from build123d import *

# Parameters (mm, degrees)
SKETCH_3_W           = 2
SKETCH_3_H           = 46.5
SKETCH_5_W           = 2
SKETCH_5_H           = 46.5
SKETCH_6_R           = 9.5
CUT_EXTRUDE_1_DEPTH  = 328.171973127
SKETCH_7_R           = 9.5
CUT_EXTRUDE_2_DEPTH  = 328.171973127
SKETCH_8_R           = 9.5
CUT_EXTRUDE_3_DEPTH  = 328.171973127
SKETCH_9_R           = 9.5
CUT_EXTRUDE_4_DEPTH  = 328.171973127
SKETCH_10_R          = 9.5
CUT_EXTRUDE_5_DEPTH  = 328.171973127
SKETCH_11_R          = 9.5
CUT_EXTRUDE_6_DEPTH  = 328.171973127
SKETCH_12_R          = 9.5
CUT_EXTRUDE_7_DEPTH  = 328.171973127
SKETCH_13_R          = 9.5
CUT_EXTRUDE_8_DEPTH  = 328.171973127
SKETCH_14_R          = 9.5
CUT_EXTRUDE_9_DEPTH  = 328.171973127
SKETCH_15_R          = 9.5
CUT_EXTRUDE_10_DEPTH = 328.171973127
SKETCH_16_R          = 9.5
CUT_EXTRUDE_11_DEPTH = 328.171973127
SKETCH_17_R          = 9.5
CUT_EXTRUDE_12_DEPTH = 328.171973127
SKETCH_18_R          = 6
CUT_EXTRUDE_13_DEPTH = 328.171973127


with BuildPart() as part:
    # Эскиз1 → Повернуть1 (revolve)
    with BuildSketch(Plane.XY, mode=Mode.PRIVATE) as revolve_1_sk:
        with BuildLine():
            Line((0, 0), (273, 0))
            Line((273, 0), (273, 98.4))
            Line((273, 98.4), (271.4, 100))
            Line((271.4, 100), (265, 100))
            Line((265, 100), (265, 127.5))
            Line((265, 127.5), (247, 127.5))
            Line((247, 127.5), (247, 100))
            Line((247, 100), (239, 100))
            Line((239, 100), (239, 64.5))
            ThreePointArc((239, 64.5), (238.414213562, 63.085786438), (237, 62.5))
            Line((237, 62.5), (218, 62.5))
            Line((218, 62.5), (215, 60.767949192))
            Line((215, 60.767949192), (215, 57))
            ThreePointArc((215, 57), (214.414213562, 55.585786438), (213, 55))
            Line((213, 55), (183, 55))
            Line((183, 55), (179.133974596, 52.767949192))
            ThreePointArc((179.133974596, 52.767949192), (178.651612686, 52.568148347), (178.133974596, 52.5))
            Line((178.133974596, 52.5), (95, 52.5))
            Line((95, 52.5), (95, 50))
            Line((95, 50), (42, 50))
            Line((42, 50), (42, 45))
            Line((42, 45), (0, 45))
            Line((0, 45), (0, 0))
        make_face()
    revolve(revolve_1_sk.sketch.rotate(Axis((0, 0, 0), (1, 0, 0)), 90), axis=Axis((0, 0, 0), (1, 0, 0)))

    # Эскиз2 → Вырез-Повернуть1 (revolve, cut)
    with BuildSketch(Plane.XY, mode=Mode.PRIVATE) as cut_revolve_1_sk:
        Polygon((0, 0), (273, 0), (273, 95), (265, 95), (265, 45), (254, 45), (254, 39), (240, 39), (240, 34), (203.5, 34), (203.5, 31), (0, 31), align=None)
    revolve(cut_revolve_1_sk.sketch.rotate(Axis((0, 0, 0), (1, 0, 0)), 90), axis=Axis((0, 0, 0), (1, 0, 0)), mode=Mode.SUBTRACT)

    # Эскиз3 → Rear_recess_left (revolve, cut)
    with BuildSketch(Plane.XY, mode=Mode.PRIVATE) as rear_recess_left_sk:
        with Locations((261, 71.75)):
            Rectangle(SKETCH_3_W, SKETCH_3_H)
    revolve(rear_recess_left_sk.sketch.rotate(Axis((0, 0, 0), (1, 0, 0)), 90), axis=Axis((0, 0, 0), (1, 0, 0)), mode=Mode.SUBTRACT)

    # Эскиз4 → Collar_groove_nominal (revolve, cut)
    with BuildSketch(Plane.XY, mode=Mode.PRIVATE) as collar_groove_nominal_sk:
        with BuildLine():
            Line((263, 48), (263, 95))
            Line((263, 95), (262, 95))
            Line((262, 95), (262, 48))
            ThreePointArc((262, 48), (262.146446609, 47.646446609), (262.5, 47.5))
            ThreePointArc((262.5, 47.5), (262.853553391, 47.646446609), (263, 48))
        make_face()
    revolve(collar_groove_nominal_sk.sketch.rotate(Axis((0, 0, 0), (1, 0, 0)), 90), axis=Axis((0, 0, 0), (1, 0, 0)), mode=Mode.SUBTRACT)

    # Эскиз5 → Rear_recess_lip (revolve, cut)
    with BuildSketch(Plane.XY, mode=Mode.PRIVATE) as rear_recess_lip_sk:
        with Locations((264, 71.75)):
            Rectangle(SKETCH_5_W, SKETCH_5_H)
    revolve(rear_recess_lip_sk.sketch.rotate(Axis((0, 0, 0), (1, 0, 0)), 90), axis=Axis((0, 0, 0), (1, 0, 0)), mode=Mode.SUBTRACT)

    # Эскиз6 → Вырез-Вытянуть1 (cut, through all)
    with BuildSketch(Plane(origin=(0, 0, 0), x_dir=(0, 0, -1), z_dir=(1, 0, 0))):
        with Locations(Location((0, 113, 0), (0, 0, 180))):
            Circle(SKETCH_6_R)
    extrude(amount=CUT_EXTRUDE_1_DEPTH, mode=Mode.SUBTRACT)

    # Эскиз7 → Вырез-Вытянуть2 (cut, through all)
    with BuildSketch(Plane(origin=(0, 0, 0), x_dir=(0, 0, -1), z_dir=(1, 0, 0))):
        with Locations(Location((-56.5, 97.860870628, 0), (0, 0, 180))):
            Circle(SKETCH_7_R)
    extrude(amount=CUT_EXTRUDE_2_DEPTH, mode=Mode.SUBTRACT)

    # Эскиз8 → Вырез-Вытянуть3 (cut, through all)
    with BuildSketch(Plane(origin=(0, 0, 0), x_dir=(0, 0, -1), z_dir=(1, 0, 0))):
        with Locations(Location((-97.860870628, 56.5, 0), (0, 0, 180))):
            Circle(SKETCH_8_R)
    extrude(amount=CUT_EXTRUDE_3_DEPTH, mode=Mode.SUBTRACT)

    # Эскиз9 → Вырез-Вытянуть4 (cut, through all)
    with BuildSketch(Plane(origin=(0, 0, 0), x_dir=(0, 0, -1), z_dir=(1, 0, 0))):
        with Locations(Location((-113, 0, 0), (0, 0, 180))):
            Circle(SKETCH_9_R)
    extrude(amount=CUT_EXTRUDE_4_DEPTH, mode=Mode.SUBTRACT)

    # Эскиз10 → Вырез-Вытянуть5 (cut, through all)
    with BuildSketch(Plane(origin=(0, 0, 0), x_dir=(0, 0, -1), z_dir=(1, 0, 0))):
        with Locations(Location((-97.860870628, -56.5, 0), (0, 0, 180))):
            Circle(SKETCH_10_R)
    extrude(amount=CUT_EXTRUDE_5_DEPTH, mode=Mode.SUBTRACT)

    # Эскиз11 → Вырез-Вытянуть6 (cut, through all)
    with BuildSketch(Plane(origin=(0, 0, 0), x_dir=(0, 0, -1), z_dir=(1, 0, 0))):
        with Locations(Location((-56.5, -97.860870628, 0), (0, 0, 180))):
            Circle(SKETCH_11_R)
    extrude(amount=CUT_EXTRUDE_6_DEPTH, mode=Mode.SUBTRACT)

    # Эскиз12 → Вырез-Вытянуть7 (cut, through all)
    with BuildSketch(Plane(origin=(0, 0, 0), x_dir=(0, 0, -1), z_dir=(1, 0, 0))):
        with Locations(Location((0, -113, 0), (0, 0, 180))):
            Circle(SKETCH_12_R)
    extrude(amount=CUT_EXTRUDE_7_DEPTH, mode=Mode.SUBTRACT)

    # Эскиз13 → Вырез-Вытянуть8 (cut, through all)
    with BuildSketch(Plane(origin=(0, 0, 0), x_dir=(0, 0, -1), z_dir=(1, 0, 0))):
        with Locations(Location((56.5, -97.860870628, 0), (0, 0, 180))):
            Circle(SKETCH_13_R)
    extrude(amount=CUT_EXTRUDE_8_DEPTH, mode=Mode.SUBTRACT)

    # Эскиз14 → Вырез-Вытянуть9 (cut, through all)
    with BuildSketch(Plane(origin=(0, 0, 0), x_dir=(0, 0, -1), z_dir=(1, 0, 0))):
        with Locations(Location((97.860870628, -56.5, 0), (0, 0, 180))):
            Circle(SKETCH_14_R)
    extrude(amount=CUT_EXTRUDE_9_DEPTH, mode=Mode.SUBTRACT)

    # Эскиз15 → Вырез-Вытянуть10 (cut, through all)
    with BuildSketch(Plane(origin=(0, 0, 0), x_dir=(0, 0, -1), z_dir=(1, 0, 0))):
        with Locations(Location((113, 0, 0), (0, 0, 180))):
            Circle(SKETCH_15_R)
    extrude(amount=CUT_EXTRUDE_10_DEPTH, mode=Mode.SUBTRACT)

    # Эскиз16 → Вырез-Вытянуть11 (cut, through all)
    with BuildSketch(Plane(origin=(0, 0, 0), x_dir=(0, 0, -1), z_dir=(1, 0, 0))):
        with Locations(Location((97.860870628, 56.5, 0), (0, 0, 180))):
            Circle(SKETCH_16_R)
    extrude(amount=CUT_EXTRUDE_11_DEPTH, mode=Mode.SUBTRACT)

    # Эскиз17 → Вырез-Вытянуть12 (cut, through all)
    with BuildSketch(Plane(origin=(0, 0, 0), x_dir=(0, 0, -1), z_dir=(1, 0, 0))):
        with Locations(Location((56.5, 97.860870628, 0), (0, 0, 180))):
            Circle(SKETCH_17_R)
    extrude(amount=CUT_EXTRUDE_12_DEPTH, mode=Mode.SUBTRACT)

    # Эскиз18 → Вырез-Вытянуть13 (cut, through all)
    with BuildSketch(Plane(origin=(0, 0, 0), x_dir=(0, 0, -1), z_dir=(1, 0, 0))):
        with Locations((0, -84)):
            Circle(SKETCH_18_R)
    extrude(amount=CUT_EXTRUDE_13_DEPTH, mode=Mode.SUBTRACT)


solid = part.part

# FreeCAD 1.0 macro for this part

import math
import FreeCAD as App
import Part
import Sketcher
Q = App.Units.Quantity


def add_polygon(sketch, points):
    """Adds a closed chain of lines whose ends are joined by coincident constraints."""
    first, n = sketch.GeometryCount, len(points)
    for a, b in zip(points, points[1:] + points[:1]):
        sketch.addGeometry(Part.LineSegment(App.Vector(*a, 0), App.Vector(*b, 0)), False)
    for i in range(n):
        sketch.addConstraint(Sketcher.Constraint("Coincident", first + i, 2, first + (i + 1) % n, 1))

doc = App.newDocument("Part")
body = doc.addObject("PartDesign::Body", "Body")

sketch1 = body.newObject("Sketcher::SketchObject", "Sketch")
sketch1.AttachmentSupport = (doc.getObject("XY_Plane"), [""])
sketch1.MapMode = "FlatFace"
sketch1.addGeometry([
    Part.LineSegment(App.Vector(0, 0, 0), App.Vector(273, 0, 0)),
    Part.LineSegment(App.Vector(273, 0, 0), App.Vector(273, 98.4, 0)),
    Part.LineSegment(App.Vector(273, 98.4, 0), App.Vector(271.4, 100, 0)),
    Part.LineSegment(App.Vector(271.4, 100, 0), App.Vector(265, 100, 0)),
    Part.LineSegment(App.Vector(265, 100, 0), App.Vector(265, 127.5, 0)),
    Part.LineSegment(App.Vector(265, 127.5, 0), App.Vector(247, 127.5, 0)),
    Part.LineSegment(App.Vector(247, 127.5, 0), App.Vector(247, 100, 0)),
    Part.LineSegment(App.Vector(247, 100, 0), App.Vector(239, 100, 0)),
    Part.LineSegment(App.Vector(239, 100, 0), App.Vector(239, 64.5, 0)),
    Part.ArcOfCircle(Part.Circle(App.Vector(237, 64.5, 0), App.Vector(0, 0, 1), 2), math.radians(-90), math.radians(0)),
    Part.LineSegment(App.Vector(237, 62.5, 0), App.Vector(218, 62.5, 0)),
    Part.LineSegment(App.Vector(218, 62.5, 0), App.Vector(215, 60.767949, 0)),
    Part.LineSegment(App.Vector(215, 60.767949, 0), App.Vector(215, 57, 0)),
    Part.ArcOfCircle(Part.Circle(App.Vector(213, 57, 0), App.Vector(0, 0, 1), 2), math.radians(-90), math.radians(0)),
    Part.LineSegment(App.Vector(213, 55, 0), App.Vector(183, 55, 0)),
    Part.LineSegment(App.Vector(183, 55, 0), App.Vector(179.133975, 52.767949, 0)),
    Part.ArcOfCircle(Part.Circle(App.Vector(178.133975, 54.5, 0), App.Vector(0, 0, 1), 2), math.radians(-90), math.radians(-60)),
    Part.LineSegment(App.Vector(178.133975, 52.5, 0), App.Vector(95, 52.5, 0)),
    Part.LineSegment(App.Vector(95, 52.5, 0), App.Vector(95, 50, 0)),
    Part.LineSegment(App.Vector(95, 50, 0), App.Vector(42, 50, 0)),
    Part.LineSegment(App.Vector(42, 50, 0), App.Vector(42, 45, 0)),
    Part.LineSegment(App.Vector(42, 45, 0), App.Vector(0, 45, 0)),
    Part.LineSegment(App.Vector(0, 45, 0), App.Vector(0, 0, 0)),
], False)
sketch1.addConstraint([
    Sketcher.Constraint("Coincident", 0, 2, 1, 1),
    Sketcher.Constraint("Coincident", 1, 2, 2, 1),
    Sketcher.Constraint("Coincident", 2, 2, 3, 1),
    Sketcher.Constraint("Coincident", 3, 2, 4, 1),
    Sketcher.Constraint("Coincident", 4, 2, 5, 1),
    Sketcher.Constraint("Coincident", 5, 2, 6, 1),
    Sketcher.Constraint("Coincident", 6, 2, 7, 1),
    Sketcher.Constraint("Coincident", 7, 2, 8, 1),
    Sketcher.Constraint("Tangent", 8, 2, 9, 2),
    Sketcher.Constraint("Tangent", 9, 1, 10, 1),
    Sketcher.Constraint("Coincident", 10, 2, 11, 1),
    Sketcher.Constraint("Coincident", 11, 2, 12, 1),
    Sketcher.Constraint("Tangent", 12, 2, 13, 2),
    Sketcher.Constraint("Tangent", 13, 1, 14, 1),
    Sketcher.Constraint("Coincident", 14, 2, 15, 1),
    Sketcher.Constraint("Tangent", 15, 2, 16, 2),
    Sketcher.Constraint("Tangent", 16, 1, 17, 1),
    Sketcher.Constraint("Coincident", 17, 2, 18, 1),
    Sketcher.Constraint("Coincident", 18, 2, 19, 1),
    Sketcher.Constraint("Coincident", 19, 2, 20, 1),
    Sketcher.Constraint("Coincident", 20, 2, 21, 1),
    Sketcher.Constraint("Coincident", 21, 2, 22, 1),
    Sketcher.Constraint("Coincident", 22, 2, 0, 1),
    Sketcher.Constraint("Horizontal", 0),
    Sketcher.Constraint("Vertical", 1),
    Sketcher.Constraint("Horizontal", 3),
    Sketcher.Constraint("Vertical", 4),
    Sketcher.Constraint("Horizontal", 5),
    Sketcher.Constraint("Vertical", 6),
    Sketcher.Constraint("Horizontal", 7),
    Sketcher.Constraint("Vertical", 8),
    Sketcher.Constraint("Horizontal", 10),
    Sketcher.Constraint("Vertical", 12),
    Sketcher.Constraint("Horizontal", 14),
    Sketcher.Constraint("Horizontal", 17),
    Sketcher.Constraint("Vertical", 18),
    Sketcher.Constraint("Horizontal", 19),
    Sketcher.Constraint("Vertical", 20),
    Sketcher.Constraint("Horizontal", 21),
    Sketcher.Constraint("Vertical", 22),
    Sketcher.Constraint("Coincident", 22, 2, -1, 1),
    Sketcher.Constraint("Equal", 9, 13),
    Sketcher.Constraint("Equal", 13, 16),
    Sketcher.Constraint("Parallel", 11, 15),
    Sketcher.Constraint("Horizontal", 3, 2, 6, 2),
    Sketcher.Constraint("Radius", 9, Q("2 mm")),
    Sketcher.Constraint("DistanceX", 0, 1, 0, 2, Q("273 mm")),
    Sketcher.Constraint("DistanceX", 5, 2, 5, 1, Q("18 mm")),
    Sketcher.Constraint("DistanceX", 7, 2, 7, 1, Q("8 mm")),
    Sketcher.Constraint("DistanceX", 10, 2, 10, 1, Q("19 mm")),
    Sketcher.Constraint("DistanceX", 14, 2, 14, 1, Q("30 mm")),
    Sketcher.Constraint("DistanceX", 19, 2, 19, 1, Q("53 mm")),
    Sketcher.Constraint("DistanceX", 21, 2, 21, 1, Q("42 mm")),
    Sketcher.Constraint("DistanceY", 20, 2, 20, 1, Q("5 mm")),
    Sketcher.Constraint("DistanceY", 22, 2, 22, 1, Q("45 mm")),
    Sketcher.Constraint("Angle", 2, Q("135 deg")),
    Sketcher.Constraint("Angle", 11, Q("-150 deg")),
    Sketcher.Constraint("DistanceX", 3, 2, 3, 1, Q("6.4 mm")),
    Sketcher.Constraint("DistanceY", 1, 1, 1, 2, Q("98.4 mm")),
    Sketcher.Constraint("DistanceY", 4, 1, 4, 2, Q("27.5 mm")),
    Sketcher.Constraint("DistanceY", 8, 2, 8, 1, Q("35.5 mm")),
    Sketcher.Constraint("DistanceY", 18, 2, 18, 1, Q("2.5 mm")),
    Sketcher.Constraint("DistanceX", -1, 1, 9, 3, Q("237 mm")),
    Sketcher.Constraint("DistanceX", -1, 1, 13, 3, Q("213 mm")),
    Sketcher.Constraint("DistanceY", -1, 1, 13, 3, Q("57 mm")),
])
revolution = body.newObject("PartDesign::Revolution", "Revolution")
revolution.Profile = sketch1
revolution.ReferenceAxis = (sketch1, ["H_Axis"])
revolution.Angle = 360

sketch2 = body.newObject("Sketcher::SketchObject", "Sketch001")
sketch2.AttachmentSupport = (doc.getObject("XY_Plane"), [""])
sketch2.MapMode = "FlatFace"
add_polygon(sketch2, [(0, 0), (273, 0), (273, 95), (265, 95), (265, 45), (254, 45), (254, 39), (240, 39), (240, 34), (203.5, 34), (203.5, 31), (0, 31)])
sketch2.addConstraint([
    Sketcher.Constraint("Horizontal", 0),
    Sketcher.Constraint("Vertical", 1),
    Sketcher.Constraint("Horizontal", 2),
    Sketcher.Constraint("Vertical", 3),
    Sketcher.Constraint("Horizontal", 4),
    Sketcher.Constraint("Vertical", 5),
    Sketcher.Constraint("Horizontal", 6),
    Sketcher.Constraint("Vertical", 7),
    Sketcher.Constraint("Horizontal", 8),
    Sketcher.Constraint("Vertical", 9),
    Sketcher.Constraint("Horizontal", 10),
    Sketcher.Constraint("Vertical", 11),
    Sketcher.Constraint("Coincident", 11, 2, -1, 1),
    Sketcher.Constraint("DistanceX", 0, 1, 0, 2, Q("273 mm")),
    Sketcher.Constraint("DistanceX", 2, 2, 2, 1, Q("8 mm")),
    Sketcher.Constraint("DistanceX", 4, 2, 4, 1, Q("11 mm")),
    Sketcher.Constraint("DistanceX", 6, 2, 6, 1, Q("14 mm")),
    Sketcher.Constraint("DistanceY", 1, 1, 1, 2, Q("95 mm")),
    Sketcher.Constraint("DistanceY", 3, 2, 3, 1, Q("50 mm")),
    Sketcher.Constraint("DistanceY", 5, 2, 5, 1, Q("6 mm")),
    Sketcher.Constraint("DistanceY", 7, 2, 7, 1, Q("5 mm")),
    Sketcher.Constraint("DistanceY", 9, 2, 9, 1, Q("3 mm")),
    Sketcher.Constraint("DistanceX", 8, 2, 8, 1, Q("36.5 mm")),
])
groove = body.newObject("PartDesign::Groove", "Groove")
groove.Profile = sketch2
groove.ReferenceAxis = (sketch2, ["H_Axis"])
groove.Angle = 360

sketch3 = body.newObject("Sketcher::SketchObject", "Sketch002")
sketch3.AttachmentSupport = (doc.getObject("XY_Plane"), [""])
sketch3.MapMode = "FlatFace"
add_polygon(sketch3, [(260, 95), (260, 48.5), (262, 48.5), (262, 95)])
sketch3.addConstraint([
    Sketcher.Constraint("Vertical", 0),
    Sketcher.Constraint("Horizontal", 1),
    Sketcher.Constraint("Vertical", 2),
    Sketcher.Constraint("Horizontal", 3),
    Sketcher.Constraint("DistanceX", 1, 1, 1, 2, Q("2 mm")),
    Sketcher.Constraint("DistanceY", 0, 2, 0, 1, Q("46.5 mm")),
    Sketcher.Constraint("DistanceX", -1, 1, 0, 2, Q("260 mm")),
    Sketcher.Constraint("DistanceY", -1, 1, 2, 2, Q("95 mm")),
])
groove2 = body.newObject("PartDesign::Groove", "Groove001")
groove2.Profile = sketch3
groove2.ReferenceAxis = (sketch3, ["H_Axis"])
groove2.Angle = 360

sketch4 = body.newObject("Sketcher::SketchObject", "Sketch003")
sketch4.AttachmentSupport = (doc.getObject("XY_Plane"), [""])
sketch4.MapMode = "FlatFace"
sketch4.addGeometry([
    Part.LineSegment(App.Vector(263, 48, 0), App.Vector(263, 95, 0)),
    Part.LineSegment(App.Vector(263, 95, 0), App.Vector(262, 95, 0)),
    Part.LineSegment(App.Vector(262, 95, 0), App.Vector(262, 48, 0)),
    Part.ArcOfCircle(Part.Circle(App.Vector(262.5, 48, 0), App.Vector(0, 0, 1), 0.5), math.radians(180), math.radians(270)),
    Part.ArcOfCircle(Part.Circle(App.Vector(262.5, 48, 0), App.Vector(0, 0, 1), 0.5), math.radians(-90), math.radians(0)),
], False)
sketch4.addConstraint([
    Sketcher.Constraint("Coincident", 0, 2, 1, 1),
    Sketcher.Constraint("Coincident", 1, 2, 2, 1),
    Sketcher.Constraint("Tangent", 2, 2, 3, 1),
    Sketcher.Constraint("Tangent", 3, 2, 4, 1),
    Sketcher.Constraint("Tangent", 4, 2, 0, 1),
    Sketcher.Constraint("Vertical", 0),
    Sketcher.Constraint("Horizontal", 1),
    Sketcher.Constraint("Vertical", 2),
    Sketcher.Constraint("Equal", 3, 4),
    Sketcher.Constraint("Vertical", 4, 3, 3, 2),
    Sketcher.Constraint("Radius", 3, Q("0.5 mm")),
    Sketcher.Constraint("DistanceY", 0, 1, 0, 2, Q("47 mm")),
    Sketcher.Constraint("DistanceY", -1, 1, 3, 3, Q("48 mm")),
    Sketcher.Constraint("DistanceX", -1, 1, 0, 2, Q("263 mm")),
])
groove3 = body.newObject("PartDesign::Groove", "Groove002")
groove3.Profile = sketch4
groove3.ReferenceAxis = (sketch4, ["H_Axis"])
groove3.Angle = 360

sketch5 = body.newObject("Sketcher::SketchObject", "Sketch004")
sketch5.AttachmentSupport = (doc.getObject("XY_Plane"), [""])
sketch5.MapMode = "FlatFace"
add_polygon(sketch5, [(263, 95), (263, 48.5), (265, 48.5), (265, 95)])
sketch5.addConstraint([
    Sketcher.Constraint("Vertical", 0),
    Sketcher.Constraint("Horizontal", 1),
    Sketcher.Constraint("Vertical", 2),
    Sketcher.Constraint("Horizontal", 3),
    Sketcher.Constraint("DistanceX", 1, 1, 1, 2, Q("2 mm")),
    Sketcher.Constraint("DistanceY", 0, 2, 0, 1, Q("46.5 mm")),
    Sketcher.Constraint("DistanceX", -1, 1, 0, 2, Q("263 mm")),
    Sketcher.Constraint("DistanceY", -1, 1, 2, 2, Q("95 mm")),
])
groove4 = body.newObject("PartDesign::Groove", "Groove003")
groove4.Profile = sketch5
groove4.ReferenceAxis = (sketch5, ["H_Axis"])
groove4.Angle = 360

sketch6 = body.newObject("Sketcher::SketchObject", "Sketch005")
sketch6.AttachmentSupport = (doc.getObject("YZ_Plane"), [""])
sketch6.MapMode = "FlatFace"
sketch6.addGeometry(Part.Circle(App.Vector(113, 0, 0), App.Vector(0, 0, 1), 9.5), False)
sketch6.addConstraint([
    Sketcher.Constraint("PointOnObject", 0, 3, -1),
    Sketcher.Constraint("Diameter", 0, Q("19 mm")),
    Sketcher.Constraint("DistanceX", -1, 1, 0, 3, Q("113 mm")),
])
pocket1 = body.newObject("PartDesign::Pocket", "Pocket")
pocket1.Profile = sketch6
pocket1.Type = "ThroughAll"
pocket1.Reversed = True

sketch7 = body.newObject("Sketcher::SketchObject", "Sketch006")
sketch7.AttachmentSupport = (doc.getObject("YZ_Plane"), [""])
sketch7.MapMode = "FlatFace"
sketch7.addGeometry(Part.Circle(App.Vector(97.860871, 56.5, 0), App.Vector(0, 0, 1), 9.5), False)
sketch7.addConstraint([
    Sketcher.Constraint("Diameter", 0, Q("19 mm")),
    Sketcher.Constraint("DistanceY", -1, 1, 0, 3, Q("56.5 mm")),
    Sketcher.Constraint("DistanceX", -1, 1, 0, 3, Q("97.860871 mm")),
])
pocket2 = body.newObject("PartDesign::Pocket", "Pocket001")
pocket2.Profile = sketch7
pocket2.Type = "ThroughAll"
pocket2.Reversed = True

sketch8 = body.newObject("Sketcher::SketchObject", "Sketch007")
sketch8.AttachmentSupport = (doc.getObject("YZ_Plane"), [""])
sketch8.MapMode = "FlatFace"
sketch8.addGeometry(Part.Circle(App.Vector(56.5, 97.860871, 0), App.Vector(0, 0, 1), 9.5), False)
sketch8.addConstraint([
    Sketcher.Constraint("Diameter", 0, Q("19 mm")),
    Sketcher.Constraint("DistanceX", -1, 1, 0, 3, Q("56.5 mm")),
    Sketcher.Constraint("DistanceY", -1, 1, 0, 3, Q("97.860871 mm")),
])
pocket3 = body.newObject("PartDesign::Pocket", "Pocket002")
pocket3.Profile = sketch8
pocket3.Type = "ThroughAll"
pocket3.Reversed = True

sketch9 = body.newObject("Sketcher::SketchObject", "Sketch008")
sketch9.AttachmentSupport = (doc.getObject("YZ_Plane"), [""])
sketch9.MapMode = "FlatFace"
sketch9.addGeometry(Part.Circle(App.Vector(0, 113, 0), App.Vector(0, 0, 1), 9.5), False)
sketch9.addConstraint([
    Sketcher.Constraint("PointOnObject", 0, 3, -2),
    Sketcher.Constraint("Diameter", 0, Q("19 mm")),
    Sketcher.Constraint("DistanceY", -1, 1, 0, 3, Q("113 mm")),
])
pocket4 = body.newObject("PartDesign::Pocket", "Pocket003")
pocket4.Profile = sketch9
pocket4.Type = "ThroughAll"
pocket4.Reversed = True

sketch10 = body.newObject("Sketcher::SketchObject", "Sketch009")
sketch10.AttachmentSupport = (doc.getObject("YZ_Plane"), [""])
sketch10.MapMode = "FlatFace"
sketch10.addGeometry(Part.Circle(App.Vector(-56.5, 97.860871, 0), App.Vector(0, 0, 1), 9.5), False)
sketch10.addConstraint([
    Sketcher.Constraint("Diameter", 0, Q("19 mm")),
    Sketcher.Constraint("DistanceX", 0, 3, -1, 1, Q("56.5 mm")),
    Sketcher.Constraint("DistanceY", -1, 1, 0, 3, Q("97.860871 mm")),
])
pocket5 = body.newObject("PartDesign::Pocket", "Pocket004")
pocket5.Profile = sketch10
pocket5.Type = "ThroughAll"
pocket5.Reversed = True

sketch11 = body.newObject("Sketcher::SketchObject", "Sketch010")
sketch11.AttachmentSupport = (doc.getObject("YZ_Plane"), [""])
sketch11.MapMode = "FlatFace"
sketch11.addGeometry(Part.Circle(App.Vector(-97.860871, 56.5, 0), App.Vector(0, 0, 1), 9.5), False)
sketch11.addConstraint([
    Sketcher.Constraint("Diameter", 0, Q("19 mm")),
    Sketcher.Constraint("DistanceY", -1, 1, 0, 3, Q("56.5 mm")),
    Sketcher.Constraint("DistanceX", 0, 3, -1, 1, Q("97.860871 mm")),
])
pocket6 = body.newObject("PartDesign::Pocket", "Pocket005")
pocket6.Profile = sketch11
pocket6.Type = "ThroughAll"
pocket6.Reversed = True

sketch12 = body.newObject("Sketcher::SketchObject", "Sketch011")
sketch12.AttachmentSupport = (doc.getObject("YZ_Plane"), [""])
sketch12.MapMode = "FlatFace"
sketch12.addGeometry(Part.Circle(App.Vector(-113, 0, 0), App.Vector(0, 0, 1), 9.5), False)
sketch12.addConstraint([
    Sketcher.Constraint("PointOnObject", 0, 3, -1),
    Sketcher.Constraint("Diameter", 0, Q("19 mm")),
    Sketcher.Constraint("DistanceX", 0, 3, -1, 1, Q("113 mm")),
])
pocket7 = body.newObject("PartDesign::Pocket", "Pocket006")
pocket7.Profile = sketch12
pocket7.Type = "ThroughAll"
pocket7.Reversed = True

sketch13 = body.newObject("Sketcher::SketchObject", "Sketch012")
sketch13.AttachmentSupport = (doc.getObject("YZ_Plane"), [""])
sketch13.MapMode = "FlatFace"
sketch13.addGeometry(Part.Circle(App.Vector(-97.860871, -56.5, 0), App.Vector(0, 0, 1), 9.5), False)
sketch13.addConstraint([
    Sketcher.Constraint("Diameter", 0, Q("19 mm")),
    Sketcher.Constraint("DistanceY", 0, 3, -1, 1, Q("56.5 mm")),
    Sketcher.Constraint("DistanceX", 0, 3, -1, 1, Q("97.860871 mm")),
])
pocket8 = body.newObject("PartDesign::Pocket", "Pocket007")
pocket8.Profile = sketch13
pocket8.Type = "ThroughAll"
pocket8.Reversed = True

sketch14 = body.newObject("Sketcher::SketchObject", "Sketch013")
sketch14.AttachmentSupport = (doc.getObject("YZ_Plane"), [""])
sketch14.MapMode = "FlatFace"
sketch14.addGeometry(Part.Circle(App.Vector(-56.5, -97.860871, 0), App.Vector(0, 0, 1), 9.5), False)
sketch14.addConstraint([
    Sketcher.Constraint("Diameter", 0, Q("19 mm")),
    Sketcher.Constraint("DistanceX", 0, 3, -1, 1, Q("56.5 mm")),
    Sketcher.Constraint("DistanceY", 0, 3, -1, 1, Q("97.860871 mm")),
])
pocket9 = body.newObject("PartDesign::Pocket", "Pocket008")
pocket9.Profile = sketch14
pocket9.Type = "ThroughAll"
pocket9.Reversed = True

sketch15 = body.newObject("Sketcher::SketchObject", "Sketch014")
sketch15.AttachmentSupport = (doc.getObject("YZ_Plane"), [""])
sketch15.MapMode = "FlatFace"
sketch15.addGeometry(Part.Circle(App.Vector(0, -113, 0), App.Vector(0, 0, 1), 9.5), False)
sketch15.addConstraint([
    Sketcher.Constraint("PointOnObject", 0, 3, -2),
    Sketcher.Constraint("Diameter", 0, Q("19 mm")),
    Sketcher.Constraint("DistanceY", 0, 3, -1, 1, Q("113 mm")),
])
pocket10 = body.newObject("PartDesign::Pocket", "Pocket009")
pocket10.Profile = sketch15
pocket10.Type = "ThroughAll"
pocket10.Reversed = True

sketch16 = body.newObject("Sketcher::SketchObject", "Sketch015")
sketch16.AttachmentSupport = (doc.getObject("YZ_Plane"), [""])
sketch16.MapMode = "FlatFace"
sketch16.addGeometry(Part.Circle(App.Vector(56.5, -97.860871, 0), App.Vector(0, 0, 1), 9.5), False)
sketch16.addConstraint([
    Sketcher.Constraint("Diameter", 0, Q("19 mm")),
    Sketcher.Constraint("DistanceX", -1, 1, 0, 3, Q("56.5 mm")),
    Sketcher.Constraint("DistanceY", 0, 3, -1, 1, Q("97.860871 mm")),
])
pocket11 = body.newObject("PartDesign::Pocket", "Pocket010")
pocket11.Profile = sketch16
pocket11.Type = "ThroughAll"
pocket11.Reversed = True

sketch17 = body.newObject("Sketcher::SketchObject", "Sketch016")
sketch17.AttachmentSupport = (doc.getObject("YZ_Plane"), [""])
sketch17.MapMode = "FlatFace"
sketch17.addGeometry(Part.Circle(App.Vector(97.860871, -56.5, 0), App.Vector(0, 0, 1), 9.5), False)
sketch17.addConstraint([
    Sketcher.Constraint("Diameter", 0, Q("19 mm")),
    Sketcher.Constraint("DistanceY", 0, 3, -1, 1, Q("56.5 mm")),
    Sketcher.Constraint("DistanceX", -1, 1, 0, 3, Q("97.860871 mm")),
])
pocket12 = body.newObject("PartDesign::Pocket", "Pocket011")
pocket12.Profile = sketch17
pocket12.Type = "ThroughAll"
pocket12.Reversed = True

sketch18 = body.newObject("Sketcher::SketchObject", "Sketch017")
sketch18.AttachmentSupport = (doc.getObject("YZ_Plane"), [""])
sketch18.MapMode = "FlatFace"
sketch18.addGeometry(Part.Circle(App.Vector(-84, 0, 0), App.Vector(0, 0, 1), 6), False)
sketch18.addConstraint([
    Sketcher.Constraint("PointOnObject", 0, 3, -1),
    Sketcher.Constraint("Diameter", 0, Q("12 mm")),
    Sketcher.Constraint("DistanceX", 0, 3, -1, 1, Q("84 mm")),
])
pocket13 = body.newObject("PartDesign::Pocket", "Pocket012")
pocket13.Profile = sketch18
pocket13.Type = "ThroughAll"
pocket13.Reversed = True

doc.recompute()
